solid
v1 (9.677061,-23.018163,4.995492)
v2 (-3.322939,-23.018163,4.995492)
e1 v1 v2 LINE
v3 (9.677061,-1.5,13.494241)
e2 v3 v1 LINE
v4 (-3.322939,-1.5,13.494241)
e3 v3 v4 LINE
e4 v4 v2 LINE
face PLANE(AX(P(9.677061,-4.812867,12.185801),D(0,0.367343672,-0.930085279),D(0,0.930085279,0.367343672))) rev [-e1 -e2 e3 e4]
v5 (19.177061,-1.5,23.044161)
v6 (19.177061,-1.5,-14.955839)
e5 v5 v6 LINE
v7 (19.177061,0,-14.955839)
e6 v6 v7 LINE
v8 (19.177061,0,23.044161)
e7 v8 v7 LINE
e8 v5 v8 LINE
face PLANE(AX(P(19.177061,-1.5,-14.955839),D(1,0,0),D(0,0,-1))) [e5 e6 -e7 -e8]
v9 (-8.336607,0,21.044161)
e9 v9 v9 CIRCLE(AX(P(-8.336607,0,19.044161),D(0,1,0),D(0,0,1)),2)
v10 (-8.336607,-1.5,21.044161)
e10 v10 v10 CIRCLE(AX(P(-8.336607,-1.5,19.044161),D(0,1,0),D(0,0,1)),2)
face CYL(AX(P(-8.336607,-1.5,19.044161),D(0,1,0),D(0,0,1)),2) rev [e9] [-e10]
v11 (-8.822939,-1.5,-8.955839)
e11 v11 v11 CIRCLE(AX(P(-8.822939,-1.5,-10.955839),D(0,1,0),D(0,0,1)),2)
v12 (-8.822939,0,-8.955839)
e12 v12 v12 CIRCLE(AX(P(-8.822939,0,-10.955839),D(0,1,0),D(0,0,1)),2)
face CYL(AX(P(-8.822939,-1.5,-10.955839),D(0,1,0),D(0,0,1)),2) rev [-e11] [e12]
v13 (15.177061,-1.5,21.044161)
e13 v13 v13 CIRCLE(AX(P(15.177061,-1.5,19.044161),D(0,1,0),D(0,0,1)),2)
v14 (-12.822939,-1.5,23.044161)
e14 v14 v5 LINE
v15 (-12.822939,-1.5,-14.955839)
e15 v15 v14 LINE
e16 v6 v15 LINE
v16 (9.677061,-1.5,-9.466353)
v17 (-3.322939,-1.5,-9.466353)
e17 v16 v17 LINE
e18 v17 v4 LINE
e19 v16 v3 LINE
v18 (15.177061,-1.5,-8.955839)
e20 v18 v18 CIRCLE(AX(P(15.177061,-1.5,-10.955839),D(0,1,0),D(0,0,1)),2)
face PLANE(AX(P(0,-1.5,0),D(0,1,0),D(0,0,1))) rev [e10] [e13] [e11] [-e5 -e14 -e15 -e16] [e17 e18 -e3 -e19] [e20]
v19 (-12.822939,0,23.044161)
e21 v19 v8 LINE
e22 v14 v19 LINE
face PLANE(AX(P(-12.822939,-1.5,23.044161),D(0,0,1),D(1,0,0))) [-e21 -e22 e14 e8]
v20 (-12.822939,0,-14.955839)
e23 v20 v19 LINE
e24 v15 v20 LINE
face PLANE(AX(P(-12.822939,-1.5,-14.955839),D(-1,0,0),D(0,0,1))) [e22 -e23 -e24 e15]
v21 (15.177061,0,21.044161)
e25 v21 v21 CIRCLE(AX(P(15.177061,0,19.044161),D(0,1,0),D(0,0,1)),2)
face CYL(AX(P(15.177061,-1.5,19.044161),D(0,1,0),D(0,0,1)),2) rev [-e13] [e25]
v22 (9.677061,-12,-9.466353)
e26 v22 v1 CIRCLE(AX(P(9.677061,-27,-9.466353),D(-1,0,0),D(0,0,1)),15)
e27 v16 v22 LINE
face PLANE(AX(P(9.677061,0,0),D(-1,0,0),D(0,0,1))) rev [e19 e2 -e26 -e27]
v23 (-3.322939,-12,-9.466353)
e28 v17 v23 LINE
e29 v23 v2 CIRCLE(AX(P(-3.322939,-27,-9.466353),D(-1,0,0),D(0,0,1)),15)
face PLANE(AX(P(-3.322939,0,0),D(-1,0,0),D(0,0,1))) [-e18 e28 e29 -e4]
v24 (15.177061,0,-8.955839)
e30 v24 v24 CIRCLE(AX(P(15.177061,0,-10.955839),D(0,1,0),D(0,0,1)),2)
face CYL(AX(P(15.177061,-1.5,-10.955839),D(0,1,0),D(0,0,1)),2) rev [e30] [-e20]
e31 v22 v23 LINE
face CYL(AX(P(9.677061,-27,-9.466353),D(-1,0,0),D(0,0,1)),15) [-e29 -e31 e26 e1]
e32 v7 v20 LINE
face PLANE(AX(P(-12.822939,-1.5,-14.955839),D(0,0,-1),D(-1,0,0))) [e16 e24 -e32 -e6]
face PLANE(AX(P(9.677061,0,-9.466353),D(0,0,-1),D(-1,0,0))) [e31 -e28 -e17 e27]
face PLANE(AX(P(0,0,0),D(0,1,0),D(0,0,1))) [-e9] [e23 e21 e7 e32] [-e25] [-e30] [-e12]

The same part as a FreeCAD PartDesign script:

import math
import FreeCAD as App
import Part
import Sketcher
from FreeCAD import Vector
Q = App.Units.Quantity

doc = App.newDocument("Part")
body = doc.addObject("PartDesign::Body", "Body")

# Sketch on XZ plane
sketch1 = doc.addObject("Sketcher::SketchObject", "Sketch")
body.addObject(sketch1)
sketch1.AttachmentSupport = (doc.XZ_Plane, [""])
sketch1.MapMode = "FlatFace"
sketch1.addGeometry([
    Part.LineSegment(Vector(-12.8, -15, 0), Vector(-12.8, 23, 0)),  # 0
    Part.LineSegment(Vector(-12.8, 23, 0), Vector(19.2, 23, 0)),  # 1
    Part.LineSegment(Vector(19.2, 23, 0), Vector(19.2, -15, 0)),  # 2
    Part.LineSegment(Vector(19.2, -15, 0), Vector(-12.8, -15, 0)),  # 3
    Part.Circle(Vector(-8.3, 19, 0), Vector(0, 0, 1), 2),  # 4
    Part.Circle(Vector(15.2, 19, 0), Vector(0, 0, 1), 2),  # 5
    Part.Circle(Vector(-8.8, -11, 0), Vector(0, 0, 1), 2),  # 6
    Part.Circle(Vector(15.2, -11, 0), Vector(0, 0, 1), 2),  # 7
], False)
sketch1.addConstraint([
    Sketcher.Constraint("Coincident", 0, 2, 1, 1),
    Sketcher.Constraint("Coincident", 1, 2, 2, 1),
    Sketcher.Constraint("Coincident", 2, 2, 3, 1),
    Sketcher.Constraint("Coincident", 3, 2, 0, 1),
    Sketcher.Constraint("Vertical", 0),
    Sketcher.Constraint("Horizontal", 1),
    Sketcher.Constraint("Vertical", 2),
    Sketcher.Constraint("Horizontal", 3),
    Sketcher.Constraint("Equal", 4, 5),
    Sketcher.Constraint("Equal", 5, 6),
    Sketcher.Constraint("Equal", 6, 7),
    Sketcher.Constraint("Horizontal", 4, 3, 5, 3),
    Sketcher.Constraint("Horizontal", 6, 3, 7, 3),
    Sketcher.Constraint("Vertical", 5, 3, 7, 3),
    Sketcher.Constraint("Diameter", 4, Q("4 mm")),
    Sketcher.Constraint("DistanceX", 1, 1, 1, 2, Q("32 mm")),
    Sketcher.Constraint("DistanceY", 0, 1, 0, 2, Q("38 mm")),
    Sketcher.Constraint("DistanceY", 6, 3, 4, 3, Q("30 mm")),
    Sketcher.Constraint("DistanceX", 6, 3, 5, 3, Q("24 mm")),
    Sketcher.Constraint("DistanceY", 4, 3, 0, 2, Q("4 mm")),
    Sketcher.Constraint("DistanceX", 0, 2, 5, 3, Q("28 mm")),
    Sketcher.Constraint("DistanceY", -1, 1, 4, 3, Q("19.044161 mm")),
    Sketcher.Constraint("DistanceX", -1, 1, 5, 3, Q("15.177061 mm")),
    Sketcher.Constraint("DistanceX", 4, 3, 5, 3, Q("23.513668 mm")),
])
pad1 = doc.addObject("PartDesign::Pad", "Pad")
body.addObject(pad1)
pad1.Profile = sketch1
pad1.Length = 1.5

# Sketch on YZ plane
sketch2 = doc.addObject("Sketcher::SketchObject", "Sketch001")
body.addObject(sketch2)
sketch2.AttachmentSupport = (doc.YZ_Plane, [""])
sketch2.MapMode = "FlatFace"
sketch2.AttachmentOffset = App.Placement(Vector(0, 0, 3.177061), App.Rotation())
sketch2.addGeometry([
    Part.LineSegment(Vector(-23, 5, 0), Vector(-2, 13, 0)),
    Part.LineSegment(Vector(-2, 13, 0), Vector(-2, -9, 0)),
    Part.LineSegment(Vector(-2, -9, 0), Vector(-12, -9, 0)),
    Part.ArcOfCircle(Part.Circle(Vector(-27, -9, 0), Vector(0, 0, 1), 15), math.radians(75), math.radians(360)),
], False)
sketch2.addConstraint([
    Sketcher.Constraint("Coincident", 0, 2, 1, 1),
    Sketcher.Constraint("Coincident", 1, 2, 2, 1),
    Sketcher.Constraint("Coincident", 2, 2, 3, 2),
    Sketcher.Constraint("Coincident", 3, 1, 0, 1),
    Sketcher.Constraint("Vertical", 1),
    Sketcher.Constraint("Horizontal", 2),
    Sketcher.Constraint("Horizontal", 3, 3, 1, 2),
    Sketcher.Constraint("Radius", 3, Q("15 mm")),
    Sketcher.Constraint("DistanceX", 2, 2, 2, 1, Q("10.5 mm")),
    Sketcher.Constraint("DistanceX", 3, 3, -1, 1, Q("27 mm")),
    Sketcher.Constraint("Distance", 0, Q("23.135688 mm")),
    Sketcher.Constraint("DistanceY", 1, 2, 1, 1, Q("22.960594 mm")),
    Sketcher.Constraint("DistanceY", -1, 1, 0, 2, Q("13.494241 mm")),
])
pad2 = doc.addObject("PartDesign::Pad", "Pad001")
body.addObject(pad2)
pad2.Profile = sketch2
pad2.Type = "TwoLengths"
pad2.Length = 6.5
pad2.Length2 = 6.5
pad2.Reversed = True

doc.recompute()
